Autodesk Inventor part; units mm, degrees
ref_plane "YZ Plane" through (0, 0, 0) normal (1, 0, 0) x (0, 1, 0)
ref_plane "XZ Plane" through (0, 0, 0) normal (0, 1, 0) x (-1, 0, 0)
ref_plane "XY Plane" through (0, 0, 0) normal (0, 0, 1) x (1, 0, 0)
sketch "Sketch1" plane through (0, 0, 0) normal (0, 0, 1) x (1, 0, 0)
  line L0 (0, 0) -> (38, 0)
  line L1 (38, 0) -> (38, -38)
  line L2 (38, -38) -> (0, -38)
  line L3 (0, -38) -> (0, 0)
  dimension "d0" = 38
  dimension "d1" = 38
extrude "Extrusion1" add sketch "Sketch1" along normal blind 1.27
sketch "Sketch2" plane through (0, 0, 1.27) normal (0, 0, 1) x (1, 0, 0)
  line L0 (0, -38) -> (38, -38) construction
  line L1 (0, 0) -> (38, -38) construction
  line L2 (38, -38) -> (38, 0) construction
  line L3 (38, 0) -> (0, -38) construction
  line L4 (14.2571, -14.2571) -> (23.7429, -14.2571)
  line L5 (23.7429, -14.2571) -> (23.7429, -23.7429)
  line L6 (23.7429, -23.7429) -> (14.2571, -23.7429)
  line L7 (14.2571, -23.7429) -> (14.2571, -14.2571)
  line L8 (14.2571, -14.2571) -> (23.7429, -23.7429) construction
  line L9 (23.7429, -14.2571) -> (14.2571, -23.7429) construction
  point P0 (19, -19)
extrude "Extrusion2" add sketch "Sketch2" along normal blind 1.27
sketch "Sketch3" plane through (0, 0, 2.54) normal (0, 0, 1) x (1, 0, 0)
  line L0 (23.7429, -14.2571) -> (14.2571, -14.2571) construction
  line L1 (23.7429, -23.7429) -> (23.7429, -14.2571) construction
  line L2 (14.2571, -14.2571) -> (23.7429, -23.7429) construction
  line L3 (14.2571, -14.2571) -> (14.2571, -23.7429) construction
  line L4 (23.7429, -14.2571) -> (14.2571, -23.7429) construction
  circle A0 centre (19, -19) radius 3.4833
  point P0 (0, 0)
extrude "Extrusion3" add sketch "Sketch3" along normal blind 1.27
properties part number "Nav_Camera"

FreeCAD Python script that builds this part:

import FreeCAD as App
import Part
import Sketcher
Q = App.Units.Quantity

doc = App.newDocument("Part")
params = doc.addObject("Spreadsheet::Sheet", "Params")
for row, (alias, value) in enumerate([
    ("sketch1_width", "38 mm"),
    ("pad1_length", "1.27 mm"),
    ("pad2_length", "1.27 mm"),
    ("pad3_length", "1.27 mm"),
], start=1):
    params.set(f"A{row}", alias)
    params.set(f"B{row}", "=" + value)
    params.setAlias(f"B{row}", alias)

body = doc.addObject("PartDesign::Body", "Body")

# Sketch on XY plane
sketch1 = body.newObject("Sketcher::SketchObject", "Sketch")
sketch1.AttachmentSupport = (doc.getObject("XY_Plane"), [""])
sketch1.MapMode = "FlatFace"
sketch1.addGeometry([
    Part.LineSegment(App.Vector(38, 0, 0), App.Vector(0, 0, 0)),
    Part.LineSegment(App.Vector(0, 0, 0), App.Vector(0, -38, 0)),
    Part.LineSegment(App.Vector(0, -38, 0), App.Vector(38, -38, 0)),
    Part.LineSegment(App.Vector(38, -38, 0), App.Vector(38, 0, 0)),
], False)
sketch1.addConstraint([
    Sketcher.Constraint("Coincident", 0, 2, 1, 1),
    Sketcher.Constraint("Coincident", 1, 2, 2, 1),
    Sketcher.Constraint("Coincident", 2, 2, 3, 1),
    Sketcher.Constraint("Coincident", 3, 2, 0, 1),
    Sketcher.Constraint("Horizontal", 0),
    Sketcher.Constraint("Vertical", 1),
    Sketcher.Constraint("Horizontal", 2),
    Sketcher.Constraint("Vertical", 3),
    Sketcher.Constraint("Coincident", 0, 2, -1, 1),
    Sketcher.Constraint("Equal", 2, 1),
    Sketcher.Constraint("DistanceX", 0, 2, 0, 1, Q("38 mm")),
])
sketch1.setExpression("Constraints[10]", "Params.sketch1_width")
pad1 = body.newObject("PartDesign::Pad", "Pad")
pad1.Profile = sketch1
pad1.setExpression("Length", "Params.pad1_length")

# Sketch on XY plane
sketch2 = body.newObject("Sketcher::SketchObject", "Sketch001")
sketch2.AttachmentSupport = (doc.getObject("XY_Plane"), [""])
sketch2.MapMode = "FlatFace"
sketch2.AttachmentOffset = App.Placement(App.Vector(0, 0, 1.27), App.Rotation())
sketch2.addGeometry([
    Part.LineSegment(App.Vector(24, -14, 0), App.Vector(14, -14, 0)),
    Part.LineSegment(App.Vector(14, -14, 0), App.Vector(14, -24, 0)),
    Part.LineSegment(App.Vector(14, -24, 0), App.Vector(24, -24, 0)),
    Part.LineSegment(App.Vector(24, -24, 0), App.Vector(24, -14, 0)),
], False)
sketch2.addConstraint([
    Sketcher.Constraint("Coincident", 0, 2, 1, 1),
    Sketcher.Constraint("Coincident", 1, 2, 2, 1),
    Sketcher.Constraint("Coincident", 2, 2, 3, 1),
    Sketcher.Constraint("Coincident", 3, 2, 0, 1),
    Sketcher.Constraint("Horizontal", 0),
    Sketcher.Constraint("Vertical", 1),
    Sketcher.Constraint("Horizontal", 2),
    Sketcher.Constraint("Vertical", 3),
    Sketcher.Constraint("Equal", 2, 1),
    Sketcher.Constraint("DistanceX", 0, 2, 0, 1, Q("9.4858 mm")),
    Sketcher.Constraint("DistanceX", -1, 1, 0, 2, Q("14.257 mm")),
    Sketcher.Constraint("DistanceY", 0, 2, -1, 1, Q("14.257 mm")),
])
pad2 = body.newObject("PartDesign::Pad", "Pad001")
pad2.Profile = sketch2
pad2.setExpression("Length", "Params.pad2_length")

# Sketch on XY plane
sketch3 = body.newObject("Sketcher::SketchObject", "Sketch002")
sketch3.AttachmentSupport = (doc.getObject("XY_Plane"), [""])
sketch3.MapMode = "FlatFace"
sketch3.AttachmentOffset = App.Placement(App.Vector(0, 0, 2.54), App.Rotation())
sketch3.addGeometry(Part.Circle(App.Vector(19, -19, 0), App.Vector(0, 0, 1), 3.5), False)
sketch3.addConstraint([
    Sketcher.Constraint("DistanceX", -1, 1, 0, 3, Q("19 mm")),
    Sketcher.Constraint("DistanceY", 0, 3, -1, 1, Q("19 mm")),
    Sketcher.Constraint("Diameter", 0, Q("6.9666 mm")),
])
pad3 = body.newObject("PartDesign::Pad", "Pad002")
pad3.Profile = sketch3
pad3.setExpression("Length", "Params.pad3_length")

doc.recompute()
